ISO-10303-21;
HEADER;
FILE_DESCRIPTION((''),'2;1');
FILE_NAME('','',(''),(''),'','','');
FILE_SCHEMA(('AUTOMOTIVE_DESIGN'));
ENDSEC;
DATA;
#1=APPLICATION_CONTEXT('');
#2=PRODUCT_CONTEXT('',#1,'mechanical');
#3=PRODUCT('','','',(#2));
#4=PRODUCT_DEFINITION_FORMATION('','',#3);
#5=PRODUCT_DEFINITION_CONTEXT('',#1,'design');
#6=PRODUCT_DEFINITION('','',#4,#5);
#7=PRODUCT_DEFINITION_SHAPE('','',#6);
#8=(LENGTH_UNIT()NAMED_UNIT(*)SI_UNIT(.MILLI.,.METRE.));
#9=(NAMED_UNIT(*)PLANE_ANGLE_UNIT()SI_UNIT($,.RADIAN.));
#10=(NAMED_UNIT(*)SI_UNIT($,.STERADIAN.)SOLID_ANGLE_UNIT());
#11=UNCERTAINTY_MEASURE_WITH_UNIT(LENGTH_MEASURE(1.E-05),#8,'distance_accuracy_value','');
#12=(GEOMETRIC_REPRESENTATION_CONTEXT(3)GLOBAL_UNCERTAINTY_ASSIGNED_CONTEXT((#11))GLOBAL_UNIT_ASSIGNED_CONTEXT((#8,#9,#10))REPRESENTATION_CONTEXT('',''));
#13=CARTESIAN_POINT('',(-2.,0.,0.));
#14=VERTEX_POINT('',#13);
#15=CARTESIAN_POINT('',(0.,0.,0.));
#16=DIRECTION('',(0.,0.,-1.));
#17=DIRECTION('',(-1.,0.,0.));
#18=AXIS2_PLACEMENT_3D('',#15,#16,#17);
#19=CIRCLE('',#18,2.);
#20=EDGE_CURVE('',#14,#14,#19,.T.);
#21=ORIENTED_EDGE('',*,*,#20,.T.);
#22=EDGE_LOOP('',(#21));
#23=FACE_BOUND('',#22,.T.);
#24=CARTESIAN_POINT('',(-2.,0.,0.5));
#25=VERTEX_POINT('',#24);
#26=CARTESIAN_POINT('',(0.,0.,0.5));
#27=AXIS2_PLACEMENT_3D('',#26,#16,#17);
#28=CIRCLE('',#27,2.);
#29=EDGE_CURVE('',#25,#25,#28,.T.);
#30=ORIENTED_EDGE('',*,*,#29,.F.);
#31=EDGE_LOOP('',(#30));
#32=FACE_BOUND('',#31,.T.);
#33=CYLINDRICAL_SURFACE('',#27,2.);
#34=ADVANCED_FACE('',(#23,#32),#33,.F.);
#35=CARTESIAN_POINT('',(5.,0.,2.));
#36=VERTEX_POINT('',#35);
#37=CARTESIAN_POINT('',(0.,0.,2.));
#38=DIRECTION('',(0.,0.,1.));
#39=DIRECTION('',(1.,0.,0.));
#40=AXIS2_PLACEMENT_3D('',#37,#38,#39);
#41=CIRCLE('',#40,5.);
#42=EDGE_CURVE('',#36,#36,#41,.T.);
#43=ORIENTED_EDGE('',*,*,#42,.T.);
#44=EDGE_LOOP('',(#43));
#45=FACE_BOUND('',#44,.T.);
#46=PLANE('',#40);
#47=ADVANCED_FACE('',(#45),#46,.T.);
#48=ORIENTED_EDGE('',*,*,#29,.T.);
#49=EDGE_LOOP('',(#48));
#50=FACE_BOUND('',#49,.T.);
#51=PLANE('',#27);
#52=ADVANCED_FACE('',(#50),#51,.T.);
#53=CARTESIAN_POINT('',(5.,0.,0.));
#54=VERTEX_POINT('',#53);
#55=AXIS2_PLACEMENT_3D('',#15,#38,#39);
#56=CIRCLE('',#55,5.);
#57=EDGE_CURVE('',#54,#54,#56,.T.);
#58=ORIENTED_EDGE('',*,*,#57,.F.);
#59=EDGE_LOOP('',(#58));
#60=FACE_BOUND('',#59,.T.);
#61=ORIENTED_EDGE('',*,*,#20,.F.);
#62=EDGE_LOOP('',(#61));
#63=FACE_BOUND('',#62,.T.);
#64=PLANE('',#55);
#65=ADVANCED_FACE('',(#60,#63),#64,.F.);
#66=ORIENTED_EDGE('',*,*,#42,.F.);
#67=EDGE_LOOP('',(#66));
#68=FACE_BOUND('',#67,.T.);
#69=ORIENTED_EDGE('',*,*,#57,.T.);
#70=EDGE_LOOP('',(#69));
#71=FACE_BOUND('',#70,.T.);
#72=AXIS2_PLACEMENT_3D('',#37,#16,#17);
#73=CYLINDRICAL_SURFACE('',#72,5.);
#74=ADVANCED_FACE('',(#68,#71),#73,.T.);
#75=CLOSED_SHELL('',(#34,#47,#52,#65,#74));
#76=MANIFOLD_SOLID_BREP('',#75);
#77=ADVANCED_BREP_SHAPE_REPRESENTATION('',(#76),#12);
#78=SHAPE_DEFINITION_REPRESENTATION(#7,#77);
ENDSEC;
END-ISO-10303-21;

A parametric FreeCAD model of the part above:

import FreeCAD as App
import Part
import Sketcher

doc = App.newDocument("Part")
body = doc.addObject("PartDesign::Body", "Body")

# Sketch on XY plane
sketch1 = doc.addObject("Sketcher::SketchObject", "Sketch")
body.addObject(sketch1)
sketch1.AttachmentSupport = (doc.XY_Plane, [""])
sketch1.MapMode = "FlatFace"
sketch1.addGeometry(Part.Circle(App.Vector(0, 0, 0), App.Vector(0, 0, 1), 5), False)
sketch1.addConstraint([
    Sketcher.Constraint("Coincident", 0, 3, -1, 1),
    Sketcher.Constraint("Diameter", 0, 10.0),
])
pad1 = doc.addObject("PartDesign::Pad", "Pad")
body.addObject(pad1)
pad1.Profile = sketch1
pad1.Length = 2

# Sketch on XY plane
sketch2 = doc.addObject("Sketcher::SketchObject", "Sketch001")
body.addObject(sketch2)
sketch2.AttachmentSupport = (doc.XY_Plane, [""])
sketch2.MapMode = "FlatFace"
sketch2.addGeometry(Part.Circle(App.Vector(0, 0, 0), App.Vector(0, 0, 1), 2), False)
sketch2.addConstraint([
    Sketcher.Constraint("Coincident", 0, 3, -1, 1),
    Sketcher.Constraint("Diameter", 0, 4.0),
])
pocket1 = doc.addObject("PartDesign::Pocket", "Pocket")
body.addObject(pocket1)
pocket1.Profile = sketch2
pocket1.Length = 0.5
pocket1.Reversed = True

doc.recompute()
